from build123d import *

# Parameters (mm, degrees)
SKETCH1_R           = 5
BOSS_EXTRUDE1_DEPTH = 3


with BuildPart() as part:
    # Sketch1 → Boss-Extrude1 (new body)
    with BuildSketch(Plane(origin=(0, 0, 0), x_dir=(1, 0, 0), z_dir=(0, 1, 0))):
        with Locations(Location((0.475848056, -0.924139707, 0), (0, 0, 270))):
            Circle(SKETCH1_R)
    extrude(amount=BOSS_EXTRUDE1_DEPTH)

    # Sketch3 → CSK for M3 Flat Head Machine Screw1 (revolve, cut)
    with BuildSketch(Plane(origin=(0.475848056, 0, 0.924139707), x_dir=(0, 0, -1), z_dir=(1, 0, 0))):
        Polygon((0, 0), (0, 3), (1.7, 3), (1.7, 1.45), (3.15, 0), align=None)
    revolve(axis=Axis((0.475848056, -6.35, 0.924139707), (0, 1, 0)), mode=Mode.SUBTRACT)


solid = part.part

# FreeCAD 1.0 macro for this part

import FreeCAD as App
import Part
import Sketcher
Q = App.Units.Quantity


def add_polygon(sketch, points):
    """Adds a closed chain of lines whose ends are joined by coincident constraints."""
    first, n = sketch.GeometryCount, len(points)
    for a, b in zip(points, points[1:] + points[:1]):
        sketch.addGeometry(Part.LineSegment(App.Vector(*a, 0), App.Vector(*b, 0)), False)
    for i in range(n):
        sketch.addConstraint(Sketcher.Constraint("Coincident", first + i, 2, first + (i + 1) % n, 1))

doc = App.newDocument("Part")
body = doc.addObject("PartDesign::Body", "Body")

sketch1 = doc.addObject("Sketcher::SketchObject", "Sketch")
body.addObject(sketch1)
sketch1.AttachmentSupport = (doc.XZ_Plane, [""])
sketch1.MapMode = "FlatFace"
sketch1.addGeometry(Part.Circle(App.Vector(0.475848, 0.92414, 0), App.Vector(0, 0, 1), 5), False)
sketch1.addConstraint(Sketcher.Constraint("Diameter", 0, Q("10 mm")))
sketch1.addConstraint(Sketcher.Constraint("DistanceX", -1, 1, 0, 3, Q("0.475848 mm")))
sketch1.addConstraint(Sketcher.Constraint("DistanceY", -1, 1, 0, 3, Q("0.92414 mm")))
pad1 = doc.addObject("PartDesign::Pad", "Pad")
body.addObject(pad1)
pad1.Profile = sketch1
pad1.Length = 3
pad1.Reversed = True

sketch2 = doc.addObject("Sketcher::SketchObject", "Sketch001")
body.addObject(sketch2)
sketch2.AttachmentSupport = (doc.YZ_Plane, [""])
sketch2.MapMode = "FlatFace"
sketch2.AttachmentOffset = App.Placement(App.Vector(0, 0, 0.475848), App.Rotation())
add_polygon(sketch2, [(3, 0.92414), (0, 0.92414), (0, -2.22586), (1.45, -0.77586), (3, -0.77586)])
sketch2.addGeometry(Part.LineSegment(App.Vector(0, 0.92414, 0), App.Vector(3, 0.92414, 0)), True)
sketch2.addConstraint(Sketcher.Constraint("Horizontal", 0))
sketch2.addConstraint(Sketcher.Constraint("Vertical", 1))
sketch2.addConstraint(Sketcher.Constraint("Horizontal", 3))
sketch2.addConstraint(Sketcher.Constraint("Vertical", 4))
sketch2.addConstraint(Sketcher.Constraint("Horizontal", 5))
sketch2.addConstraint(Sketcher.Constraint("Coincident", 5, 1, 0, 2))
sketch2.addConstraint(Sketcher.Constraint("PointOnObject", 0, 2, -2))
sketch2.addConstraint(Sketcher.Constraint("Vertical", 3, 2, 5, 2))
sketch2.addConstraint(Sketcher.Constraint("DistanceX", 0, 2, 0, 1, Q("3 mm")))
sketch2.addConstraint(Sketcher.Constraint("Angle", 2, Q("45 deg")))
sketch2.addConstraint(Sketcher.Constraint("DistanceY", 4, 1, 4, 2, Q("1.7 mm")))
sketch2.addConstraint(Sketcher.Constraint("DistanceX", 3, 1, 3, 2, Q("1.55 mm")))
sketch2.addConstraint(Sketcher.Constraint("DistanceY", -1, 1, 0, 2, Q("0.92414 mm")))
groove = doc.addObject("PartDesign::Groove", "Groove")
body.addObject(groove)
groove.Profile = sketch2
groove.ReferenceAxis = (sketch2, ["Axis0"])
groove.Angle = 360

doc.recompute()
